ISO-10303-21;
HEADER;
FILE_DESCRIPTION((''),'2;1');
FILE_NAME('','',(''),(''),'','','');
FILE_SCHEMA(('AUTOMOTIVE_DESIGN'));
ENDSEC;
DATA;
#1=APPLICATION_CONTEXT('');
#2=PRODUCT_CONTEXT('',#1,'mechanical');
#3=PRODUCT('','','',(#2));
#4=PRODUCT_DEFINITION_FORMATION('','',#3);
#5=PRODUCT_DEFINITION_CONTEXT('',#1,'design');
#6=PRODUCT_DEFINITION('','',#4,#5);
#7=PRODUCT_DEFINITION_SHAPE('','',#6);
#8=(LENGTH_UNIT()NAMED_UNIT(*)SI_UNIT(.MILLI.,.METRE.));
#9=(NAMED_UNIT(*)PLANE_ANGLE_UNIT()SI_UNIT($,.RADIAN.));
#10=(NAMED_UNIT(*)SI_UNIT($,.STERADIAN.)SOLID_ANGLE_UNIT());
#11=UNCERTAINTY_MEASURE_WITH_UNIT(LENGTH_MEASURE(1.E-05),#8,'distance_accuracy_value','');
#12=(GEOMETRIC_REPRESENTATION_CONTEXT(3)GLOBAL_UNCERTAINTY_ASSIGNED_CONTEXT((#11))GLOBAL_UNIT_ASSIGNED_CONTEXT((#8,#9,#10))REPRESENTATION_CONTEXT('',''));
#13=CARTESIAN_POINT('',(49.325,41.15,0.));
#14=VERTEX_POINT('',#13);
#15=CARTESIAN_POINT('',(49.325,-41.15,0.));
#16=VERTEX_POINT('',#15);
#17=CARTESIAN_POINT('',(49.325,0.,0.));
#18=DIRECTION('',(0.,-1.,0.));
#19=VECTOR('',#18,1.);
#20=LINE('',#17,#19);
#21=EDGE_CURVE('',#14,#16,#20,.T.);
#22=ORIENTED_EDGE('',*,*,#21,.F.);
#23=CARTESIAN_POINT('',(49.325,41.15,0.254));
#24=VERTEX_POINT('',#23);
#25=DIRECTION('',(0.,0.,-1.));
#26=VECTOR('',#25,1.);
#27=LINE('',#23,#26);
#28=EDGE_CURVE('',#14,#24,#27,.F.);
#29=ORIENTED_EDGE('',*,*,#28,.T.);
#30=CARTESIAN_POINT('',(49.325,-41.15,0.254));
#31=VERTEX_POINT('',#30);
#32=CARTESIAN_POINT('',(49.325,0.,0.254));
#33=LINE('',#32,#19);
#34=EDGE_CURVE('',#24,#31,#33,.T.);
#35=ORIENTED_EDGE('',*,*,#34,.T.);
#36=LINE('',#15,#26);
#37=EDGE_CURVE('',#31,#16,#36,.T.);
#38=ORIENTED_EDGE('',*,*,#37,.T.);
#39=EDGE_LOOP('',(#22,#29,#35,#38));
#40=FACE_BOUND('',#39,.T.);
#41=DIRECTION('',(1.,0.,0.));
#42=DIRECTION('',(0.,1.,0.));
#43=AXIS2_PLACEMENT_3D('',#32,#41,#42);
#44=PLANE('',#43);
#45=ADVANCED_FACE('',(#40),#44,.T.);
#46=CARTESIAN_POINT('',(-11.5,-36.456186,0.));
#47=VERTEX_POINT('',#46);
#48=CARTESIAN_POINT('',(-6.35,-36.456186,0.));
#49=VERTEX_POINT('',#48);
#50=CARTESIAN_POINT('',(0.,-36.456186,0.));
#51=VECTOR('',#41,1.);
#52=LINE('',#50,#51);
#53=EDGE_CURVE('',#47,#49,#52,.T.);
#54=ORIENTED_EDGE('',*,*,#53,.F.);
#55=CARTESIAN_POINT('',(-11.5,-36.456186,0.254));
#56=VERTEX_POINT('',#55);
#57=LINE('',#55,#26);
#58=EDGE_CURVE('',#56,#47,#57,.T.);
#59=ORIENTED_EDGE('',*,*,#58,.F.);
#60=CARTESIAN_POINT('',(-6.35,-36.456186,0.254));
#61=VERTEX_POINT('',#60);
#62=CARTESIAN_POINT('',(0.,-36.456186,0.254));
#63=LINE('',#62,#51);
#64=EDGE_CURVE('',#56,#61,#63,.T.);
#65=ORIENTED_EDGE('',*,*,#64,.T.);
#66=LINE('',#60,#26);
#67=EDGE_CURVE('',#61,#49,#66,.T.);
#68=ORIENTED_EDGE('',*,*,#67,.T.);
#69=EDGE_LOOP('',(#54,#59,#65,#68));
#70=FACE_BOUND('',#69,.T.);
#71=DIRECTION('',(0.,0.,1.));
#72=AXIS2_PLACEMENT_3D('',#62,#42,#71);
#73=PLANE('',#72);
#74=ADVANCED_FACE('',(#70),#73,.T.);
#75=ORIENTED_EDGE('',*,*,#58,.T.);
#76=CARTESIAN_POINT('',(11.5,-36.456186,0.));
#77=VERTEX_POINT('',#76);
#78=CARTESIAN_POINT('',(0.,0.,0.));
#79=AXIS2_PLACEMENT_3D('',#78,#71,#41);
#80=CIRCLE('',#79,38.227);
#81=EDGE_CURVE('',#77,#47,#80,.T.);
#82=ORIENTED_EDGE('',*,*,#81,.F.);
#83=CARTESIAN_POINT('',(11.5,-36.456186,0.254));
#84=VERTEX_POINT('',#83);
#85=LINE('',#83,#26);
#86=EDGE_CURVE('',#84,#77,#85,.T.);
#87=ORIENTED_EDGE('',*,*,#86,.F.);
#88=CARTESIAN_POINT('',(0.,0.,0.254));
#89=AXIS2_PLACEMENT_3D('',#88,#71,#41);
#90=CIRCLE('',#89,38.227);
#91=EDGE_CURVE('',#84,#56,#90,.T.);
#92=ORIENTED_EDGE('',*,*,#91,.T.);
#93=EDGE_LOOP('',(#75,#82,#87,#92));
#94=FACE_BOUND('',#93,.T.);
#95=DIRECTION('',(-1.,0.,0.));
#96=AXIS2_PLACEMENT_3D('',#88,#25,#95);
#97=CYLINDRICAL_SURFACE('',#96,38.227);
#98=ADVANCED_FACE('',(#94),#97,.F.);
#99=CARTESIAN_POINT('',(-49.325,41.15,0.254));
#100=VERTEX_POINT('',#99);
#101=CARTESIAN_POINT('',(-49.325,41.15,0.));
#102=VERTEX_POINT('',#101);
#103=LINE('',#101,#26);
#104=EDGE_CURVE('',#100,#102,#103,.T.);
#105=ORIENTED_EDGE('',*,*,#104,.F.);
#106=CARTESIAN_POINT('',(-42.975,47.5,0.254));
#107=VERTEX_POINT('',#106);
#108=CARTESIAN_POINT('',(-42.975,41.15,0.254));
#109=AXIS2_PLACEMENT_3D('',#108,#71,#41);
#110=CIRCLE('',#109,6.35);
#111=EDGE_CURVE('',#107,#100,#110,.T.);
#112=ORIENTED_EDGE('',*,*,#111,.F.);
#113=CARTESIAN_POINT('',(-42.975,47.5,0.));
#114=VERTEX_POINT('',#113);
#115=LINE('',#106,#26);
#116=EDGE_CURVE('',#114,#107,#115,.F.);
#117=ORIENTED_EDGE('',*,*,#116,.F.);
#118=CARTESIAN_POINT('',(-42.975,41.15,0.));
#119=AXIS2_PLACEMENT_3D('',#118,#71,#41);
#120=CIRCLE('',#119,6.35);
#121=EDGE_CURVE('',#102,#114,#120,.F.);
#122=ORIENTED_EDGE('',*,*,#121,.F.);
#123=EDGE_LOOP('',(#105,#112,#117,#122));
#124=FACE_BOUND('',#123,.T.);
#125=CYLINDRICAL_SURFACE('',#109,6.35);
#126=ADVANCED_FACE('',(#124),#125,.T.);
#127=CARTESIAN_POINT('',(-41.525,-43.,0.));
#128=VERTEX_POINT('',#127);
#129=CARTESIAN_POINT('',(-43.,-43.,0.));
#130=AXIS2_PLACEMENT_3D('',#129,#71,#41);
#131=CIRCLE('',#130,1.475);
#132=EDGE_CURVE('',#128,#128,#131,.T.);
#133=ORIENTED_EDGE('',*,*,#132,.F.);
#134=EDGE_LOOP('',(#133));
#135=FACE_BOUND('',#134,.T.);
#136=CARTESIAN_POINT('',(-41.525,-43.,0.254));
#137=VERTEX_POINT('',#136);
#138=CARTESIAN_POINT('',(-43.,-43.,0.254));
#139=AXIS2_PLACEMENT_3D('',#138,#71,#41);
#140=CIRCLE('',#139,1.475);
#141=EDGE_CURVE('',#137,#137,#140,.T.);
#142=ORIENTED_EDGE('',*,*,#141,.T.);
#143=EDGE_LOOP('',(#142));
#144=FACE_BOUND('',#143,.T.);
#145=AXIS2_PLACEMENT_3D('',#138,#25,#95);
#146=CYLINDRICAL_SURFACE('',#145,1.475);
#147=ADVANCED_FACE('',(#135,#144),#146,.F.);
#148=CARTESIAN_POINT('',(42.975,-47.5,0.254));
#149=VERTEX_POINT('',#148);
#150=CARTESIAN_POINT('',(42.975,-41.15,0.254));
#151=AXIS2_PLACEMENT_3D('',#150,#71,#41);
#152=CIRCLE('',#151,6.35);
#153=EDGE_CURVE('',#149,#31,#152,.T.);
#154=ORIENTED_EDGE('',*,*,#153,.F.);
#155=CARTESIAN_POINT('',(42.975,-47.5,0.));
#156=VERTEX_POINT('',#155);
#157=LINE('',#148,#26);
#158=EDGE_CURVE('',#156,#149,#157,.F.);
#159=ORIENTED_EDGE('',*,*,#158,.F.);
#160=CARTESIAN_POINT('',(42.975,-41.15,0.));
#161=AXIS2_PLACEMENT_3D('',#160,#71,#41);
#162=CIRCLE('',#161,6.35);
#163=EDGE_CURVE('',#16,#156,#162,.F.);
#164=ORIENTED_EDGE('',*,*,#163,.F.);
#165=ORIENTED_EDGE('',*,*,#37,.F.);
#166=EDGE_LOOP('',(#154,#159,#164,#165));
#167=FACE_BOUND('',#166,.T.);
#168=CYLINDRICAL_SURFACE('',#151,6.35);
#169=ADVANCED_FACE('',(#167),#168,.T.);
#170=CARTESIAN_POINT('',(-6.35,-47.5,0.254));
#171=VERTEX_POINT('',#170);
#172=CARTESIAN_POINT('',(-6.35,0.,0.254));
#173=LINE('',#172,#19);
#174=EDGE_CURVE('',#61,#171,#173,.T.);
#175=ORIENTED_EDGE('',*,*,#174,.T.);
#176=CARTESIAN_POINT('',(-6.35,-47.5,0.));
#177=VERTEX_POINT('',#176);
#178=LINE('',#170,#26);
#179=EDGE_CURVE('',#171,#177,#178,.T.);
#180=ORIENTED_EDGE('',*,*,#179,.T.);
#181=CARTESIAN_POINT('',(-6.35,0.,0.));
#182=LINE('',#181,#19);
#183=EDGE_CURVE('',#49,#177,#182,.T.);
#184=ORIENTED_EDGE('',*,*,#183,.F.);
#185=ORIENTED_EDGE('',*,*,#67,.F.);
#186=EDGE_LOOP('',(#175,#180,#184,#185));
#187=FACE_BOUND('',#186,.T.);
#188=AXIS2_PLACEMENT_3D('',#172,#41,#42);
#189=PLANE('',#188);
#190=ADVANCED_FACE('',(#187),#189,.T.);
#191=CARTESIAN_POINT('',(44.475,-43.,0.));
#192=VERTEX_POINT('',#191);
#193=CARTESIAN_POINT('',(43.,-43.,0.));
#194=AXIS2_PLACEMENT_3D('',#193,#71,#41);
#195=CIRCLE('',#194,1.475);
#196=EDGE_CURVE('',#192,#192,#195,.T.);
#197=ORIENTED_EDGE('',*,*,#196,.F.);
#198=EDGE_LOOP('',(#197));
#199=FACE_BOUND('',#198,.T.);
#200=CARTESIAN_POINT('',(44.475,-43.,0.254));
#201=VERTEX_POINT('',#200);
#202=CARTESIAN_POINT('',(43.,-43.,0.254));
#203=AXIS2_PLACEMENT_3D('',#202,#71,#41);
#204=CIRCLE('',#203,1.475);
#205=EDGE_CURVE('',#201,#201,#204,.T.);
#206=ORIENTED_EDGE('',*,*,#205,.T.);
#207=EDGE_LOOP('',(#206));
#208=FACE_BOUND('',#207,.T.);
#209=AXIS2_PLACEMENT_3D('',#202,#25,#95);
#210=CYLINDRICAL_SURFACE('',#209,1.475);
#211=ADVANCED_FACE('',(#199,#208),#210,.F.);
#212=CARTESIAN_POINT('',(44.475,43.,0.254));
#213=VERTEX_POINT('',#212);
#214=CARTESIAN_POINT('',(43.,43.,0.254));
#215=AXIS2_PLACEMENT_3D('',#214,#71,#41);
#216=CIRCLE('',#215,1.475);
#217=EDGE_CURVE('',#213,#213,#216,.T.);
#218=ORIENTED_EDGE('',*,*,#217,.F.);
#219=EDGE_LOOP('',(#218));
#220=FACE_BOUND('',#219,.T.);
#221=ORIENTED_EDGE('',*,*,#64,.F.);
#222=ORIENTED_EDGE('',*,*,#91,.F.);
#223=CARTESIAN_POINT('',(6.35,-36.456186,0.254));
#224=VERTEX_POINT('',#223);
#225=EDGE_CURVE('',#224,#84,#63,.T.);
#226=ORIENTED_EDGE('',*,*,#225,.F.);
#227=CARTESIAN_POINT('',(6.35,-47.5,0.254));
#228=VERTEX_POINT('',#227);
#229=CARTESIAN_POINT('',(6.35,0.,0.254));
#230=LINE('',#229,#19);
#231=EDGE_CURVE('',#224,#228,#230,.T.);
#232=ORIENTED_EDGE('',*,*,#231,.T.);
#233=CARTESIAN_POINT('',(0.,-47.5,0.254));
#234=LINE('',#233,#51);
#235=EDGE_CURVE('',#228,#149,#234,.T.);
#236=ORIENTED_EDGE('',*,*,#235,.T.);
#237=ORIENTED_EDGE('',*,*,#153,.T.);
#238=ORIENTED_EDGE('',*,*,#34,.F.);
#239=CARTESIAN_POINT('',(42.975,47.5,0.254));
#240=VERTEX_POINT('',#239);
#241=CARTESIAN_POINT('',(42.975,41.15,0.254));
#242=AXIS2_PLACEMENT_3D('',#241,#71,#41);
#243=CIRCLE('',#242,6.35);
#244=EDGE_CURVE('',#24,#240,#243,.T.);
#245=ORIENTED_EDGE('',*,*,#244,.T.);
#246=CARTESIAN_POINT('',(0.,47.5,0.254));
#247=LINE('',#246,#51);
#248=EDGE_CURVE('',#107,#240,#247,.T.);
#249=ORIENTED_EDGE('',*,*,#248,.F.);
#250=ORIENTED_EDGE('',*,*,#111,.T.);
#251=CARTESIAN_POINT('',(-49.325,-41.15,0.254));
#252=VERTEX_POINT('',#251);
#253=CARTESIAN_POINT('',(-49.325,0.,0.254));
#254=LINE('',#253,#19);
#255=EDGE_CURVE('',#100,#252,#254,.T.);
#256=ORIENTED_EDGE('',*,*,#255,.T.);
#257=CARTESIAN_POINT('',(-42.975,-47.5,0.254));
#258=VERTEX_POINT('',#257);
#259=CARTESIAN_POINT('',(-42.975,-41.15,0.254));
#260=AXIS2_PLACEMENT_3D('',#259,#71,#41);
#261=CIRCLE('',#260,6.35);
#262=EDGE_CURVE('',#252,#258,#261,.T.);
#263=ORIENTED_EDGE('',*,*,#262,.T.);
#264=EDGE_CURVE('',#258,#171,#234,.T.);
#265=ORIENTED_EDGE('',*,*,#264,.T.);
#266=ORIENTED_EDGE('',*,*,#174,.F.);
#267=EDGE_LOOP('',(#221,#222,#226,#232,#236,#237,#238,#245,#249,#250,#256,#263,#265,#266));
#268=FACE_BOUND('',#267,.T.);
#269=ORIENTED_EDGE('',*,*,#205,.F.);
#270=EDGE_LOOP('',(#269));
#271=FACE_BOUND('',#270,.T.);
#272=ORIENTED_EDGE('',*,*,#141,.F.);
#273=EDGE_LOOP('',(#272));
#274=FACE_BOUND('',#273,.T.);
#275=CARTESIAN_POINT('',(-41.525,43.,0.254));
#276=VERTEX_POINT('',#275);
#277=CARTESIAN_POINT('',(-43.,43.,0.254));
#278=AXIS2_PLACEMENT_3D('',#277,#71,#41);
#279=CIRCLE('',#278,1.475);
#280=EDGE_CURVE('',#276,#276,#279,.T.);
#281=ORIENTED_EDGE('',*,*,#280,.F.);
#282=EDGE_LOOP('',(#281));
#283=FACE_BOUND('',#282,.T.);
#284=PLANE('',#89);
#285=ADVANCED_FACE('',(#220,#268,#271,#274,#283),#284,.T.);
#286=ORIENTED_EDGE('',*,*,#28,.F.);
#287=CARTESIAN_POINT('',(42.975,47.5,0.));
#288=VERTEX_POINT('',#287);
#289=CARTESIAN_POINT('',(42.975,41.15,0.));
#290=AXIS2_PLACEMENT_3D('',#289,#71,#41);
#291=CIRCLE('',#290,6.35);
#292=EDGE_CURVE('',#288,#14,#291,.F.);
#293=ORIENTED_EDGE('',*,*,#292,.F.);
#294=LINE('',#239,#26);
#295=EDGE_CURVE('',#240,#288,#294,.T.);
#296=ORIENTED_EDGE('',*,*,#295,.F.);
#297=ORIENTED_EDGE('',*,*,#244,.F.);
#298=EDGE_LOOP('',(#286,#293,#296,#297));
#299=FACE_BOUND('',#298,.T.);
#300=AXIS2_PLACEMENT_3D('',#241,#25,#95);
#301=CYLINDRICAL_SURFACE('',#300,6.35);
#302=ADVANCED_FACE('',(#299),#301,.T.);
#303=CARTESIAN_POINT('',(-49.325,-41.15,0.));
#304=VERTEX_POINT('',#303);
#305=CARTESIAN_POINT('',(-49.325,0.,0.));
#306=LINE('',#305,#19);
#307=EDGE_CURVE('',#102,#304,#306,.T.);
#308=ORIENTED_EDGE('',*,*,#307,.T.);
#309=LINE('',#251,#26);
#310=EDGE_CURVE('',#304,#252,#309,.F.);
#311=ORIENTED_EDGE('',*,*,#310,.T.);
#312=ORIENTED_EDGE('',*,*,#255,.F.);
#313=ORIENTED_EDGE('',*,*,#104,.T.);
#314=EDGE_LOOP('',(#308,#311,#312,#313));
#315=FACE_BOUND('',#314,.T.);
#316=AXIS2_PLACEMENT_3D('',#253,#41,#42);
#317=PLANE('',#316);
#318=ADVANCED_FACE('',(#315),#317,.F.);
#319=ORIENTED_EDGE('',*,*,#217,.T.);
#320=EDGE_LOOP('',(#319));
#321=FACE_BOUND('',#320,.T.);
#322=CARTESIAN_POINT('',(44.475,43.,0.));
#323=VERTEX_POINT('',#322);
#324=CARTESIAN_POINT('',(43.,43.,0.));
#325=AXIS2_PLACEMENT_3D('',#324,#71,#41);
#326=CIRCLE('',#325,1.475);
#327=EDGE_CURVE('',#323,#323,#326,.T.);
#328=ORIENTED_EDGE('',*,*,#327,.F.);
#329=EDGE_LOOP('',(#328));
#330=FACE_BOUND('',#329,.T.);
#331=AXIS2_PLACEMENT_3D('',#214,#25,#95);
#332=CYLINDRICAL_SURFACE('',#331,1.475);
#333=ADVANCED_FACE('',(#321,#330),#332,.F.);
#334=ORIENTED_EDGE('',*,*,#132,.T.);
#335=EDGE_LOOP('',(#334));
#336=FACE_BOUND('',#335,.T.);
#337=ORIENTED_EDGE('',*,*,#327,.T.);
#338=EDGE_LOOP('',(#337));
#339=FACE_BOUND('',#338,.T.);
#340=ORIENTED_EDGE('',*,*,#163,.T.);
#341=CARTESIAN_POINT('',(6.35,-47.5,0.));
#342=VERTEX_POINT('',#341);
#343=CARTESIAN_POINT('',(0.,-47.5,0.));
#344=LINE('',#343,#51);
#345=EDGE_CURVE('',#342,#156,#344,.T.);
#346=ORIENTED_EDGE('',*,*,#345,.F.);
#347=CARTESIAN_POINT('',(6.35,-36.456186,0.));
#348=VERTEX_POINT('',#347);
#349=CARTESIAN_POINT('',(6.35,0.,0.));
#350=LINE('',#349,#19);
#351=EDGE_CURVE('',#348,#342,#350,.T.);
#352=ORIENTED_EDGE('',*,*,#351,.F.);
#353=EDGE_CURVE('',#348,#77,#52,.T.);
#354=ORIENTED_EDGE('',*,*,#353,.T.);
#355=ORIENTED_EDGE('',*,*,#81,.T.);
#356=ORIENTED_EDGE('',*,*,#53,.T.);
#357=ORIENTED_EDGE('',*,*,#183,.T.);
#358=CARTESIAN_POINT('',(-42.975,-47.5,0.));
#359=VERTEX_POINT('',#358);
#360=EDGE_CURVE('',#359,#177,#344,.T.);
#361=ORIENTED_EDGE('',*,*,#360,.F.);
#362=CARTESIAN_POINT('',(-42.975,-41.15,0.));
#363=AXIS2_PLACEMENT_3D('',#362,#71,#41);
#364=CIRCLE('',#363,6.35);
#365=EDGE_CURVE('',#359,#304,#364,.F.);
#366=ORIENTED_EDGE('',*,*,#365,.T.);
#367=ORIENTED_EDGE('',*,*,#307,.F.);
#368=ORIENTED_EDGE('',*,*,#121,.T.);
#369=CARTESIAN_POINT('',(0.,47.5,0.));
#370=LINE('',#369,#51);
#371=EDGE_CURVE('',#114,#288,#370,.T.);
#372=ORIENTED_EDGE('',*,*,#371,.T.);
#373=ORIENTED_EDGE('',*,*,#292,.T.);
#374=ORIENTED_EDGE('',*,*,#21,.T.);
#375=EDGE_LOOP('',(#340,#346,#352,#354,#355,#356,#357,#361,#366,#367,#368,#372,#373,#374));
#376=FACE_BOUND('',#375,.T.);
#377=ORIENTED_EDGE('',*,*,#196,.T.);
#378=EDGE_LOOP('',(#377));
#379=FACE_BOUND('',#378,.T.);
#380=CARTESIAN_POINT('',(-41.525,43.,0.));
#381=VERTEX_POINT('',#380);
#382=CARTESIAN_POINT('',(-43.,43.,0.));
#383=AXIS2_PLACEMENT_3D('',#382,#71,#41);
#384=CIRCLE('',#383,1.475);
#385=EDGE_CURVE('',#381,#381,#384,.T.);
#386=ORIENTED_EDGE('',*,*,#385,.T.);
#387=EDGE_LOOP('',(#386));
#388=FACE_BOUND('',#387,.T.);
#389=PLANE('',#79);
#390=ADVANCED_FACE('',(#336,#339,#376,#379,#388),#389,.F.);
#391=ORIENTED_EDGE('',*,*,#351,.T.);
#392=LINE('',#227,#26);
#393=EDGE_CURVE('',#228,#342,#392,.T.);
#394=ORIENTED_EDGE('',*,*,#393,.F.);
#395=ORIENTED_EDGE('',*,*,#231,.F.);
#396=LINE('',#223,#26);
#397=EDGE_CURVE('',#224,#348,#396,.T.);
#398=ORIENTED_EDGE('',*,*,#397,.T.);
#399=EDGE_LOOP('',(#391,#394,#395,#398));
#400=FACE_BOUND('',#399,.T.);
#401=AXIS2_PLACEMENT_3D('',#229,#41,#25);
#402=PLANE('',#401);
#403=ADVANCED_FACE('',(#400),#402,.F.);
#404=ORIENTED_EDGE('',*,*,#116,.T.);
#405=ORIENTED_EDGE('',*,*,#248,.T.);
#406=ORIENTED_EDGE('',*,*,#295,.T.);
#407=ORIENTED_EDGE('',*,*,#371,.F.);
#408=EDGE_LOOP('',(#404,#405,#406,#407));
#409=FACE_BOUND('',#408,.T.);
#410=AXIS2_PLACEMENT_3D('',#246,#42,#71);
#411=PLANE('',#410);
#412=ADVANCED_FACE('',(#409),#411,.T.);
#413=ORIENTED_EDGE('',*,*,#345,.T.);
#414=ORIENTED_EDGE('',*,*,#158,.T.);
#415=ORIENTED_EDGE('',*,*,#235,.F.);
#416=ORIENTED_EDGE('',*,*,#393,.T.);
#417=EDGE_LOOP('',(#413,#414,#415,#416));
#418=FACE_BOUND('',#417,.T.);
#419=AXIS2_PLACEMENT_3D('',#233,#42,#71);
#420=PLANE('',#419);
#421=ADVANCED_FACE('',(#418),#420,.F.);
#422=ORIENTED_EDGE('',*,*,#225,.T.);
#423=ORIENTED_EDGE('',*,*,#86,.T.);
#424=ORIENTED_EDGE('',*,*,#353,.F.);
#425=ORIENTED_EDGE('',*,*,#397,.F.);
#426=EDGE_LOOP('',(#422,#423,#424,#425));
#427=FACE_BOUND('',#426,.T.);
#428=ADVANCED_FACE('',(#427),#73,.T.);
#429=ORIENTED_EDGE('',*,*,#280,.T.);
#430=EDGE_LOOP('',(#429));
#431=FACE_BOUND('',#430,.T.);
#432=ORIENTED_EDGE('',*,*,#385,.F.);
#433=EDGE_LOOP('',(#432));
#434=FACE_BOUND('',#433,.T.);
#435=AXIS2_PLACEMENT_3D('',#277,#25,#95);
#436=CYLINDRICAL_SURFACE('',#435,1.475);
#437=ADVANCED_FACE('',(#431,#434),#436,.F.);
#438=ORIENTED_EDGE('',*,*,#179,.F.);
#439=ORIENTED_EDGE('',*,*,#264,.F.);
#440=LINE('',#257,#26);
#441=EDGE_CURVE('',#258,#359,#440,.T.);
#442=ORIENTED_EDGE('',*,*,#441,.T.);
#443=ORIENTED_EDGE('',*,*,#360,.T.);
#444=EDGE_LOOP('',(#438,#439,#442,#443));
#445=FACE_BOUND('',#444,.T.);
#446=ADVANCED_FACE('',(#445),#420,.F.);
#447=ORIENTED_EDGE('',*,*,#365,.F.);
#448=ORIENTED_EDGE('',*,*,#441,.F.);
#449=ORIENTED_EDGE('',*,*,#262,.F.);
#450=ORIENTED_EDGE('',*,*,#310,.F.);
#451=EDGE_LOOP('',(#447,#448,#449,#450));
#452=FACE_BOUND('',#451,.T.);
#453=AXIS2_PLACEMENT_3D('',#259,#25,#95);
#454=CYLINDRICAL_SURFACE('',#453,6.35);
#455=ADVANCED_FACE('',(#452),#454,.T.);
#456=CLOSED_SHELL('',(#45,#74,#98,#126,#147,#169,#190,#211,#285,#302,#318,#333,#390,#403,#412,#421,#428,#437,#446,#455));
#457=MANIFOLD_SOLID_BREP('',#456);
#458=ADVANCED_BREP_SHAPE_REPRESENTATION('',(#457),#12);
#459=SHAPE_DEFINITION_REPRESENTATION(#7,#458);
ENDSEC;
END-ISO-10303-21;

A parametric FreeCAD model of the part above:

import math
import FreeCAD as App
import Part
import Sketcher

V = App.Vector
Q = App.Units.Quantity


def edges_at(feature, points):
    """Names of the edges that pass closest to the given points."""
    edges = feature.Shape.Edges
    near = lambda p: min(range(len(edges)), key=lambda i: edges[i].distToShape(Part.Vertex(*p))[0])
    return sorted({f"Edge{near(p) + 1}" for p in points})

doc = App.newDocument("Part")
body = doc.addObject("PartDesign::Body", "Body")

sketch1 = body.newObject("Sketcher::SketchObject", "Sketch")
sketch1.AttachmentSupport = (doc.getObject("XY_Plane"), [""])
sketch1.MapMode = "FlatFace"
sketch1.addGeometry(Part.LineSegment(V(-6.3, -47.5, 0), V(-6.3, -36.5, 0)), False)
sketch1.addGeometry(Part.LineSegment(V(-6.3, -36.5, 0), V(-11.5, -36.5, 0)), False)
sketch1.addGeometry(Part.ArcOfCircle(Part.Circle(V(0, 0, 0), V(0, 0, 1), 38.2), math.radians(0), math.radians(252)), False)
sketch1.addGeometry(Part.ArcOfCircle(Part.Circle(V(0, 0, 0), V(0, 0, 1), 38.2), math.radians(-72), math.radians(0)), False)
sketch1.addGeometry(Part.LineSegment(V(11.5, -36.5, 0), V(6.3, -36.5, 0)), False)
sketch1.addGeometry(Part.LineSegment(V(6.3, -36.5, 0), V(6.3, -47.5, 0)), False)
sketch1.addGeometry(Part.LineSegment(V(6.3, -47.5, 0), V(49.3, -47.5, 0)), False)
sketch1.addGeometry(Part.LineSegment(V(49.3, -47.5, 0), V(49.3, 47.5, 0)), False)
sketch1.addGeometry(Part.LineSegment(V(49.3, 47.5, 0), V(-49.3, 47.5, 0)), False)
sketch1.addGeometry(Part.LineSegment(V(-49.3, 47.5, 0), V(-49.3, -47.5, 0)), False)
sketch1.addGeometry(Part.LineSegment(V(-49.3, -47.5, 0), V(-6.3, -47.5, 0)), False)
sketch1.addGeometry(Part.Circle(V(-43, -43, 0), V(0, 0, 1), 1.5), False)
sketch1.addGeometry(Part.Circle(V(43, -43, 0), V(0, 0, 1), 1.5), False)
sketch1.addGeometry(Part.Circle(V(-43, 43, 0), V(0, 0, 1), 1.5), False)
sketch1.addGeometry(Part.Circle(V(43, 43, 0), V(0, 0, 1), 1.5), False)
sketch1.addConstraint(Sketcher.Constraint("Coincident", 0, 2, 1, 1))
sketch1.addConstraint(Sketcher.Constraint("Coincident", 1, 2, 2, 2))
sketch1.addConstraint(Sketcher.Constraint("Tangent", 2, 1, 3, 2))
sketch1.addConstraint(Sketcher.Constraint("Coincident", 3, 1, 4, 1))
sketch1.addConstraint(Sketcher.Constraint("Coincident", 4, 2, 5, 1))
sketch1.addConstraint(Sketcher.Constraint("Coincident", 5, 2, 6, 1))
sketch1.addConstraint(Sketcher.Constraint("Coincident", 6, 2, 7, 1))
sketch1.addConstraint(Sketcher.Constraint("Coincident", 7, 2, 8, 1))
sketch1.addConstraint(Sketcher.Constraint("Coincident", 8, 2, 9, 1))
sketch1.addConstraint(Sketcher.Constraint("Coincident", 9, 2, 10, 1))
sketch1.addConstraint(Sketcher.Constraint("Coincident", 10, 2, 0, 1))
sketch1.addConstraint(Sketcher.Constraint("Vertical", 0))
sketch1.addConstraint(Sketcher.Constraint("Horizontal", 1))
sketch1.addConstraint(Sketcher.Constraint("Horizontal", 4))
sketch1.addConstraint(Sketcher.Constraint("Vertical", 5))
sketch1.addConstraint(Sketcher.Constraint("Horizontal", 6))
sketch1.addConstraint(Sketcher.Constraint("Vertical", 7))
sketch1.addConstraint(Sketcher.Constraint("Horizontal", 8))
sketch1.addConstraint(Sketcher.Constraint("Vertical", 9))
sketch1.addConstraint(Sketcher.Constraint("Horizontal", 10))
sketch1.addConstraint(Sketcher.Constraint("Coincident", 2, 3, -1, 1))
sketch1.addConstraint(Sketcher.Constraint("Equal", 2, 3))
sketch1.addConstraint(Sketcher.Constraint("Equal", 11, 12))
sketch1.addConstraint(Sketcher.Constraint("Equal", 12, 13))
sketch1.addConstraint(Sketcher.Constraint("Equal", 13, 14))
sketch1.addConstraint(Sketcher.Constraint("Symmetric", 12, 3, 13, 3, -1, 1))
sketch1.addConstraint(Sketcher.Constraint("Symmetric", 11, 3, 14, 3, -1, 1))
sketch1.addConstraint(Sketcher.Constraint("Symmetric", 6, 2, 8, 2, -1, 1))
sketch1.addConstraint(Sketcher.Constraint("Symmetric", 11, 3, 12, 3, -2))
sketch1.addConstraint(Sketcher.Constraint("Symmetric", 0, 2, 4, 2, -2))
sketch1.addConstraint(Sketcher.Constraint("PointOnObject", 2, 1, -1))
sketch1.addConstraint(Sketcher.Constraint("Horizontal", 6, 2, 9, 2))
sketch1.addConstraint(Sketcher.Constraint("Radius", 2, Q("1.505 in")))
sketch1.addConstraint(Sketcher.Constraint("DistanceX", 0, 2, 4, 2, Q("0.5 in")))
sketch1.addConstraint(Sketcher.Constraint("Diameter", 11, Q("2.95 mm")))
sketch1.addConstraint(Sketcher.Constraint("DistanceX", 1, 2, 1, 1, Q("5.15 mm")))
sketch1.addConstraint(Sketcher.Constraint("DistanceX", 6, 1, 6, 2, Q("42.975 mm")))
sketch1.addConstraint(Sketcher.Constraint("DistanceY", 7, 1, 7, 2, Q("95 mm")))
sketch1.addConstraint(Sketcher.Constraint("DistanceX", 11, 3, -1, 1, Q("43 mm")))
sketch1.addConstraint(Sketcher.Constraint("DistanceY", 11, 3, -1, 1, Q("43 mm")))
pad1 = body.newObject("PartDesign::Pad", "Pad")
pad1.Profile = sketch1
pad1.Length = Q("0.01 in")
doc.recompute()

fillet = body.newObject("PartDesign::Fillet", "Fillet")
fillet.Base = (pad1, edges_at(pad1, [
    (-49.325, -47.5, 0.127),
    (-49.325, 47.5, 0.127),
    (49.325, 47.5, 0.127),
    (49.325, -47.5, 0.127),
]))
fillet.Radius = Q("0.25 in")

doc.recompute()
